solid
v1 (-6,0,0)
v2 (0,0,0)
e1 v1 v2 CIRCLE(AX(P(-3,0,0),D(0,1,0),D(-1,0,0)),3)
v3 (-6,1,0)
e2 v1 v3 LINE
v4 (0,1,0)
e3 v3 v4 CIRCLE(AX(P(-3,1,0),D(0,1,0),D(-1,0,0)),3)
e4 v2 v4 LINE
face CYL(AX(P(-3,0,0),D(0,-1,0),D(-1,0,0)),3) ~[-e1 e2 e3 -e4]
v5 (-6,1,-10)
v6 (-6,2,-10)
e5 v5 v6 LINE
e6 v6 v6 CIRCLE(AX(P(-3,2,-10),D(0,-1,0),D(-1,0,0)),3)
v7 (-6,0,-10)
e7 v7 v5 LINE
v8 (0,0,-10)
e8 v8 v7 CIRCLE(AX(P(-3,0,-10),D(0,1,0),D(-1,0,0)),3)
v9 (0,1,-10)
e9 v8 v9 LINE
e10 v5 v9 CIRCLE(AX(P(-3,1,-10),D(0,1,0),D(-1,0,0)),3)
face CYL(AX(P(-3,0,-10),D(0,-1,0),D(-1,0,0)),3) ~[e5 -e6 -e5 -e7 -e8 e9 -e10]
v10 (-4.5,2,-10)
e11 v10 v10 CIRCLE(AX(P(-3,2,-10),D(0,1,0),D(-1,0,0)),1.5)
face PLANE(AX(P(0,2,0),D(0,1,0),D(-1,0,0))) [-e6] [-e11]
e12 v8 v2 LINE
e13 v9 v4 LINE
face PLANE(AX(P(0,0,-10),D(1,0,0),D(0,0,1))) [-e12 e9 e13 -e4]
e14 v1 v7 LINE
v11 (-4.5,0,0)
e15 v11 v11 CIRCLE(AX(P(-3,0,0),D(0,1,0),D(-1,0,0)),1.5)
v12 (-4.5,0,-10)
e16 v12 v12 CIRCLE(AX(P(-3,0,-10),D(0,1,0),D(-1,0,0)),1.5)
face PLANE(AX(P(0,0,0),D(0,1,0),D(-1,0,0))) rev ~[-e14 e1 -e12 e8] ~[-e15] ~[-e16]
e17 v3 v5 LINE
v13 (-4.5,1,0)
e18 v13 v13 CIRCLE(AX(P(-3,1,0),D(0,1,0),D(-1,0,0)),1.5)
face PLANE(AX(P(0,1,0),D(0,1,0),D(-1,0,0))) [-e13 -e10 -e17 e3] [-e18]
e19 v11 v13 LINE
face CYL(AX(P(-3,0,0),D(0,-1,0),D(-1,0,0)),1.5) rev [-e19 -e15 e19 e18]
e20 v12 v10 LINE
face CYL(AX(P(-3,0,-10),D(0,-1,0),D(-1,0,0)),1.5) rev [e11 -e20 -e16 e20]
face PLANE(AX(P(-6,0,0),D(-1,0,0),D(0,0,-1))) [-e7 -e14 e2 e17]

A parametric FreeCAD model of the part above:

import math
import FreeCAD as App
import Part
import Sketcher
from FreeCAD import Vector

doc = App.newDocument("Part")
body = doc.addObject("PartDesign::Body", "Body")

# Sketch on XZ plane
sketch1 = doc.addObject("Sketcher::SketchObject", "Sketch")
body.addObject(sketch1)
sketch1.AttachmentSupport = (doc.XZ_Plane, [""])
sketch1.MapMode = "FlatFace"
sketch1.addGeometry([
    Part.ArcOfCircle(Part.Circle(Vector(-3, 0, 0), Vector(0, 0, 1), 3), math.radians(0), math.radians(180)),  # 0
    Part.LineSegment(Vector(0, 0, 0), Vector(0, -10, 0)),  # 1
    Part.ArcOfCircle(Part.Circle(Vector(-3, -10, 0), Vector(0, 0, 1), 3), math.radians(0), math.radians(180)),  # 2
    Part.LineSegment(Vector(-6, -10, 0), Vector(-6, 0, 0)),  # 3
    Part.Circle(Vector(-3, 0, 0), Vector(0, 0, 1), 1.5),  # 4
], False)
sketch1.addConstraint([
    Sketcher.Constraint("Tangent", 0, 1, 1, 1),
    Sketcher.Constraint("Tangent", 1, 2, 2, 1),
    Sketcher.Constraint("Tangent", 2, 2, 3, 1),
    Sketcher.Constraint("Tangent", 3, 2, 0, 2),
    Sketcher.Constraint("Vertical", 1),
    Sketcher.Constraint("Vertical", 3),
    Sketcher.Constraint("Coincident", 0, 1, -1, 1),
    Sketcher.Constraint("Coincident", 4, 3, 0, 3),
    Sketcher.Constraint("Diameter", 4, 3.0),
    Sketcher.Constraint("Radius", 0, 3.0),
    Sketcher.Constraint("DistanceY", 1, 2, 1, 1, 10.0),
])
pad1 = doc.addObject("PartDesign::Pad", "Pad")
body.addObject(pad1)
pad1.Profile = sketch1
pad1.Length = 1
pad1.Reversed = True

# Sketch on XZ plane
sketch2 = doc.addObject("Sketcher::SketchObject", "Sketch001")
body.addObject(sketch2)
sketch2.AttachmentSupport = (doc.XZ_Plane, [""])
sketch2.MapMode = "FlatFace"
sketch2.addGeometry([
    Part.Circle(Vector(-3, -10, 0), Vector(0, 0, 1), 3),
    Part.Circle(Vector(-3, -10, 0), Vector(0, 0, 1), 1.5),
], False)
sketch2.addConstraint([
    Sketcher.Constraint("Coincident", 1, 3, 0, 3),
    Sketcher.Constraint("Diameter", 0, 6.0),
    Sketcher.Constraint("Diameter", 1, 3.0),
    Sketcher.Constraint("DistanceX", 0, 3, -1, 1, 3.0),
    Sketcher.Constraint("DistanceY", 0, 3, -1, 1, 10.0),
])
pad2 = doc.addObject("PartDesign::Pad", "Pad001")
body.addObject(pad2)
pad2.Profile = sketch2
pad2.Length = 2
pad2.Reversed = True

doc.recompute()
